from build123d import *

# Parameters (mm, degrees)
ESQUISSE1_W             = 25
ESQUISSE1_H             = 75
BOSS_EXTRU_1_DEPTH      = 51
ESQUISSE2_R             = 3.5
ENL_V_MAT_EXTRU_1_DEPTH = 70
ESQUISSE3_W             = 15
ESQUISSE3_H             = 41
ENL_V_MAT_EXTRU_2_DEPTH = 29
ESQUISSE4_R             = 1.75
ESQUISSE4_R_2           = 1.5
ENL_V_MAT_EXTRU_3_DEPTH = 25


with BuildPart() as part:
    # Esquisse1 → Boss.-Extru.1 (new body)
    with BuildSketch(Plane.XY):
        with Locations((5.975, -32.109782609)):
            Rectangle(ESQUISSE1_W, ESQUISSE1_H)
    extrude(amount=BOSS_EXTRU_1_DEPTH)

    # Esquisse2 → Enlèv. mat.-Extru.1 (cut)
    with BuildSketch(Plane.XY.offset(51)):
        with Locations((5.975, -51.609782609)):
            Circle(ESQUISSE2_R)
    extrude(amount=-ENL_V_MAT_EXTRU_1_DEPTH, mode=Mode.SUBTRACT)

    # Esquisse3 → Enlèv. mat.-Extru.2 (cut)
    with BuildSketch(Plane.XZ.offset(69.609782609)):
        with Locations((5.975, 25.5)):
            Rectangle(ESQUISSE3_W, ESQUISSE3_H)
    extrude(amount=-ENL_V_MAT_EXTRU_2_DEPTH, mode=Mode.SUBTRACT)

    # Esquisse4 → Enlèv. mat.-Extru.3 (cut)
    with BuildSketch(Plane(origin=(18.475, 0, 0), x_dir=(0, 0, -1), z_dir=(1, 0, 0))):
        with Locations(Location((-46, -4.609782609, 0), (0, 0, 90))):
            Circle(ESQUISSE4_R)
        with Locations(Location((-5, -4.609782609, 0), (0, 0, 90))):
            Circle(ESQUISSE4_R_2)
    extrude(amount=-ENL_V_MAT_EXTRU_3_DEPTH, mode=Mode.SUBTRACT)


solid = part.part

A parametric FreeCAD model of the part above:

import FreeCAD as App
import Part
import Sketcher
Q = App.Units.Quantity


def add_polygon(sketch, points):
    """Adds a closed chain of lines whose ends are joined by coincident constraints."""
    first, n = sketch.GeometryCount, len(points)
    for a, b in zip(points, points[1:] + points[:1]):
        sketch.addGeometry(Part.LineSegment(App.Vector(*a, 0), App.Vector(*b, 0)), False)
    for i in range(n):
        sketch.addConstraint(Sketcher.Constraint("Coincident", first + i, 2, first + (i + 1) % n, 1))

doc = App.newDocument("Part")
body = doc.addObject("PartDesign::Body", "Body")

# Sketch on XY plane
sketch1 = body.newObject("Sketcher::SketchObject", "Sketch")
sketch1.AttachmentSupport = (doc.getObject("XY_Plane"), [""])
sketch1.MapMode = "FlatFace"
add_polygon(sketch1, [(-7, 5), (-7, -70), (18, -70), (18, 5)])  # lines 0-3
sketch1.addConstraint(Sketcher.Constraint("Vertical", 0))
sketch1.addConstraint(Sketcher.Constraint("Horizontal", 1))
sketch1.addConstraint(Sketcher.Constraint("Vertical", 2))
sketch1.addConstraint(Sketcher.Constraint("Horizontal", 3))
sketch1.addConstraint(Sketcher.Constraint("DistanceX", 1, 1, 1, 2, Q("25 mm")))
sketch1.addConstraint(Sketcher.Constraint("DistanceY", 0, 2, 0, 1, Q("75 mm")))
sketch1.addConstraint(Sketcher.Constraint("DistanceX", 0, 2, -1, 1, Q("6.525 mm")))
sketch1.addConstraint(Sketcher.Constraint("DistanceY", 0, 2, -1, 1, Q("69.609783 mm")))
pad1 = body.newObject("PartDesign::Pad", "Pad")
pad1.Profile = sketch1
pad1.Length = 51

# Sketch on XY plane
sketch2 = body.newObject("Sketcher::SketchObject", "Sketch001")
sketch2.AttachmentSupport = (doc.getObject("XY_Plane"), [""])
sketch2.MapMode = "FlatFace"
sketch2.AttachmentOffset = App.Placement(App.Vector(0, 0, 51), App.Rotation())
sketch2.addGeometry(Part.Circle(App.Vector(6, -51.6, 0), App.Vector(0, 0, 1), 3.5), False)
sketch2.addConstraint(Sketcher.Constraint("Diameter", 0, Q("7 mm")))
sketch2.addConstraint(Sketcher.Constraint("DistanceX", -1, 1, 0, 3, Q("5.975 mm")))
sketch2.addConstraint(Sketcher.Constraint("DistanceY", 0, 3, -1, 1, Q("51.609783 mm")))
pocket1 = body.newObject("PartDesign::Pocket", "Pocket")
pocket1.Profile = sketch2
pocket1.Length = 70

# Sketch on XZ plane
sketch3 = body.newObject("Sketcher::SketchObject", "Sketch002")
sketch3.AttachmentSupport = (doc.getObject("XZ_Plane"), [""])
sketch3.MapMode = "FlatFace"
sketch3.AttachmentOffset = App.Placement(App.Vector(0, 0, 69.609783), App.Rotation())
add_polygon(sketch3, [(-2, 46), (-2, 5), (13, 5), (13, 46)])  # lines 0-3
sketch3.addConstraint(Sketcher.Constraint("Vertical", 0))
sketch3.addConstraint(Sketcher.Constraint("Horizontal", 1))
sketch3.addConstraint(Sketcher.Constraint("Vertical", 2))
sketch3.addConstraint(Sketcher.Constraint("Horizontal", 3))
sketch3.addConstraint(Sketcher.Constraint("DistanceX", 1, 1, 1, 2, Q("15 mm")))
sketch3.addConstraint(Sketcher.Constraint("DistanceY", 0, 2, 0, 1, Q("41 mm")))
sketch3.addConstraint(Sketcher.Constraint("DistanceY", -1, 1, 0, 2, Q("5 mm")))
sketch3.addConstraint(Sketcher.Constraint("DistanceX", 0, 2, -1, 1, Q("1.525 mm")))
pocket2 = body.newObject("PartDesign::Pocket", "Pocket001")
pocket2.Profile = sketch3
pocket2.Length = 29

# Sketch on YZ plane
sketch4 = body.newObject("Sketcher::SketchObject", "Sketch003")
sketch4.AttachmentSupport = (doc.getObject("YZ_Plane"), [""])
sketch4.MapMode = "FlatFace"
sketch4.AttachmentOffset = App.Placement(App.Vector(0, 0, 18.475), App.Rotation())
sketch4.addGeometry(Part.Circle(App.Vector(-4.6, 46, 0), App.Vector(0, 0, 1), 1.8), False)
sketch4.addGeometry(Part.Circle(App.Vector(-4.6, 5, 0), App.Vector(0, 0, 1), 1.5), False)
sketch4.addConstraint(Sketcher.Constraint("Vertical", 0, 3, 1, 3))
sketch4.addConstraint(Sketcher.Constraint("Diameter", 1, Q("3 mm")))
sketch4.addConstraint(Sketcher.Constraint("Diameter", 0, Q("3.5 mm")))
sketch4.addConstraint(Sketcher.Constraint("DistanceY", -1, 1, 0, 3, Q("46 mm")))
sketch4.addConstraint(Sketcher.Constraint("DistanceY", -1, 1, 1, 3, Q("5 mm")))
sketch4.addConstraint(Sketcher.Constraint("DistanceX", 0, 3, -1, 1, Q("4.609783 mm")))
pocket3 = body.newObject("PartDesign::Pocket", "Pocket002")
pocket3.Profile = sketch4
pocket3.Length = 25

doc.recompute()
